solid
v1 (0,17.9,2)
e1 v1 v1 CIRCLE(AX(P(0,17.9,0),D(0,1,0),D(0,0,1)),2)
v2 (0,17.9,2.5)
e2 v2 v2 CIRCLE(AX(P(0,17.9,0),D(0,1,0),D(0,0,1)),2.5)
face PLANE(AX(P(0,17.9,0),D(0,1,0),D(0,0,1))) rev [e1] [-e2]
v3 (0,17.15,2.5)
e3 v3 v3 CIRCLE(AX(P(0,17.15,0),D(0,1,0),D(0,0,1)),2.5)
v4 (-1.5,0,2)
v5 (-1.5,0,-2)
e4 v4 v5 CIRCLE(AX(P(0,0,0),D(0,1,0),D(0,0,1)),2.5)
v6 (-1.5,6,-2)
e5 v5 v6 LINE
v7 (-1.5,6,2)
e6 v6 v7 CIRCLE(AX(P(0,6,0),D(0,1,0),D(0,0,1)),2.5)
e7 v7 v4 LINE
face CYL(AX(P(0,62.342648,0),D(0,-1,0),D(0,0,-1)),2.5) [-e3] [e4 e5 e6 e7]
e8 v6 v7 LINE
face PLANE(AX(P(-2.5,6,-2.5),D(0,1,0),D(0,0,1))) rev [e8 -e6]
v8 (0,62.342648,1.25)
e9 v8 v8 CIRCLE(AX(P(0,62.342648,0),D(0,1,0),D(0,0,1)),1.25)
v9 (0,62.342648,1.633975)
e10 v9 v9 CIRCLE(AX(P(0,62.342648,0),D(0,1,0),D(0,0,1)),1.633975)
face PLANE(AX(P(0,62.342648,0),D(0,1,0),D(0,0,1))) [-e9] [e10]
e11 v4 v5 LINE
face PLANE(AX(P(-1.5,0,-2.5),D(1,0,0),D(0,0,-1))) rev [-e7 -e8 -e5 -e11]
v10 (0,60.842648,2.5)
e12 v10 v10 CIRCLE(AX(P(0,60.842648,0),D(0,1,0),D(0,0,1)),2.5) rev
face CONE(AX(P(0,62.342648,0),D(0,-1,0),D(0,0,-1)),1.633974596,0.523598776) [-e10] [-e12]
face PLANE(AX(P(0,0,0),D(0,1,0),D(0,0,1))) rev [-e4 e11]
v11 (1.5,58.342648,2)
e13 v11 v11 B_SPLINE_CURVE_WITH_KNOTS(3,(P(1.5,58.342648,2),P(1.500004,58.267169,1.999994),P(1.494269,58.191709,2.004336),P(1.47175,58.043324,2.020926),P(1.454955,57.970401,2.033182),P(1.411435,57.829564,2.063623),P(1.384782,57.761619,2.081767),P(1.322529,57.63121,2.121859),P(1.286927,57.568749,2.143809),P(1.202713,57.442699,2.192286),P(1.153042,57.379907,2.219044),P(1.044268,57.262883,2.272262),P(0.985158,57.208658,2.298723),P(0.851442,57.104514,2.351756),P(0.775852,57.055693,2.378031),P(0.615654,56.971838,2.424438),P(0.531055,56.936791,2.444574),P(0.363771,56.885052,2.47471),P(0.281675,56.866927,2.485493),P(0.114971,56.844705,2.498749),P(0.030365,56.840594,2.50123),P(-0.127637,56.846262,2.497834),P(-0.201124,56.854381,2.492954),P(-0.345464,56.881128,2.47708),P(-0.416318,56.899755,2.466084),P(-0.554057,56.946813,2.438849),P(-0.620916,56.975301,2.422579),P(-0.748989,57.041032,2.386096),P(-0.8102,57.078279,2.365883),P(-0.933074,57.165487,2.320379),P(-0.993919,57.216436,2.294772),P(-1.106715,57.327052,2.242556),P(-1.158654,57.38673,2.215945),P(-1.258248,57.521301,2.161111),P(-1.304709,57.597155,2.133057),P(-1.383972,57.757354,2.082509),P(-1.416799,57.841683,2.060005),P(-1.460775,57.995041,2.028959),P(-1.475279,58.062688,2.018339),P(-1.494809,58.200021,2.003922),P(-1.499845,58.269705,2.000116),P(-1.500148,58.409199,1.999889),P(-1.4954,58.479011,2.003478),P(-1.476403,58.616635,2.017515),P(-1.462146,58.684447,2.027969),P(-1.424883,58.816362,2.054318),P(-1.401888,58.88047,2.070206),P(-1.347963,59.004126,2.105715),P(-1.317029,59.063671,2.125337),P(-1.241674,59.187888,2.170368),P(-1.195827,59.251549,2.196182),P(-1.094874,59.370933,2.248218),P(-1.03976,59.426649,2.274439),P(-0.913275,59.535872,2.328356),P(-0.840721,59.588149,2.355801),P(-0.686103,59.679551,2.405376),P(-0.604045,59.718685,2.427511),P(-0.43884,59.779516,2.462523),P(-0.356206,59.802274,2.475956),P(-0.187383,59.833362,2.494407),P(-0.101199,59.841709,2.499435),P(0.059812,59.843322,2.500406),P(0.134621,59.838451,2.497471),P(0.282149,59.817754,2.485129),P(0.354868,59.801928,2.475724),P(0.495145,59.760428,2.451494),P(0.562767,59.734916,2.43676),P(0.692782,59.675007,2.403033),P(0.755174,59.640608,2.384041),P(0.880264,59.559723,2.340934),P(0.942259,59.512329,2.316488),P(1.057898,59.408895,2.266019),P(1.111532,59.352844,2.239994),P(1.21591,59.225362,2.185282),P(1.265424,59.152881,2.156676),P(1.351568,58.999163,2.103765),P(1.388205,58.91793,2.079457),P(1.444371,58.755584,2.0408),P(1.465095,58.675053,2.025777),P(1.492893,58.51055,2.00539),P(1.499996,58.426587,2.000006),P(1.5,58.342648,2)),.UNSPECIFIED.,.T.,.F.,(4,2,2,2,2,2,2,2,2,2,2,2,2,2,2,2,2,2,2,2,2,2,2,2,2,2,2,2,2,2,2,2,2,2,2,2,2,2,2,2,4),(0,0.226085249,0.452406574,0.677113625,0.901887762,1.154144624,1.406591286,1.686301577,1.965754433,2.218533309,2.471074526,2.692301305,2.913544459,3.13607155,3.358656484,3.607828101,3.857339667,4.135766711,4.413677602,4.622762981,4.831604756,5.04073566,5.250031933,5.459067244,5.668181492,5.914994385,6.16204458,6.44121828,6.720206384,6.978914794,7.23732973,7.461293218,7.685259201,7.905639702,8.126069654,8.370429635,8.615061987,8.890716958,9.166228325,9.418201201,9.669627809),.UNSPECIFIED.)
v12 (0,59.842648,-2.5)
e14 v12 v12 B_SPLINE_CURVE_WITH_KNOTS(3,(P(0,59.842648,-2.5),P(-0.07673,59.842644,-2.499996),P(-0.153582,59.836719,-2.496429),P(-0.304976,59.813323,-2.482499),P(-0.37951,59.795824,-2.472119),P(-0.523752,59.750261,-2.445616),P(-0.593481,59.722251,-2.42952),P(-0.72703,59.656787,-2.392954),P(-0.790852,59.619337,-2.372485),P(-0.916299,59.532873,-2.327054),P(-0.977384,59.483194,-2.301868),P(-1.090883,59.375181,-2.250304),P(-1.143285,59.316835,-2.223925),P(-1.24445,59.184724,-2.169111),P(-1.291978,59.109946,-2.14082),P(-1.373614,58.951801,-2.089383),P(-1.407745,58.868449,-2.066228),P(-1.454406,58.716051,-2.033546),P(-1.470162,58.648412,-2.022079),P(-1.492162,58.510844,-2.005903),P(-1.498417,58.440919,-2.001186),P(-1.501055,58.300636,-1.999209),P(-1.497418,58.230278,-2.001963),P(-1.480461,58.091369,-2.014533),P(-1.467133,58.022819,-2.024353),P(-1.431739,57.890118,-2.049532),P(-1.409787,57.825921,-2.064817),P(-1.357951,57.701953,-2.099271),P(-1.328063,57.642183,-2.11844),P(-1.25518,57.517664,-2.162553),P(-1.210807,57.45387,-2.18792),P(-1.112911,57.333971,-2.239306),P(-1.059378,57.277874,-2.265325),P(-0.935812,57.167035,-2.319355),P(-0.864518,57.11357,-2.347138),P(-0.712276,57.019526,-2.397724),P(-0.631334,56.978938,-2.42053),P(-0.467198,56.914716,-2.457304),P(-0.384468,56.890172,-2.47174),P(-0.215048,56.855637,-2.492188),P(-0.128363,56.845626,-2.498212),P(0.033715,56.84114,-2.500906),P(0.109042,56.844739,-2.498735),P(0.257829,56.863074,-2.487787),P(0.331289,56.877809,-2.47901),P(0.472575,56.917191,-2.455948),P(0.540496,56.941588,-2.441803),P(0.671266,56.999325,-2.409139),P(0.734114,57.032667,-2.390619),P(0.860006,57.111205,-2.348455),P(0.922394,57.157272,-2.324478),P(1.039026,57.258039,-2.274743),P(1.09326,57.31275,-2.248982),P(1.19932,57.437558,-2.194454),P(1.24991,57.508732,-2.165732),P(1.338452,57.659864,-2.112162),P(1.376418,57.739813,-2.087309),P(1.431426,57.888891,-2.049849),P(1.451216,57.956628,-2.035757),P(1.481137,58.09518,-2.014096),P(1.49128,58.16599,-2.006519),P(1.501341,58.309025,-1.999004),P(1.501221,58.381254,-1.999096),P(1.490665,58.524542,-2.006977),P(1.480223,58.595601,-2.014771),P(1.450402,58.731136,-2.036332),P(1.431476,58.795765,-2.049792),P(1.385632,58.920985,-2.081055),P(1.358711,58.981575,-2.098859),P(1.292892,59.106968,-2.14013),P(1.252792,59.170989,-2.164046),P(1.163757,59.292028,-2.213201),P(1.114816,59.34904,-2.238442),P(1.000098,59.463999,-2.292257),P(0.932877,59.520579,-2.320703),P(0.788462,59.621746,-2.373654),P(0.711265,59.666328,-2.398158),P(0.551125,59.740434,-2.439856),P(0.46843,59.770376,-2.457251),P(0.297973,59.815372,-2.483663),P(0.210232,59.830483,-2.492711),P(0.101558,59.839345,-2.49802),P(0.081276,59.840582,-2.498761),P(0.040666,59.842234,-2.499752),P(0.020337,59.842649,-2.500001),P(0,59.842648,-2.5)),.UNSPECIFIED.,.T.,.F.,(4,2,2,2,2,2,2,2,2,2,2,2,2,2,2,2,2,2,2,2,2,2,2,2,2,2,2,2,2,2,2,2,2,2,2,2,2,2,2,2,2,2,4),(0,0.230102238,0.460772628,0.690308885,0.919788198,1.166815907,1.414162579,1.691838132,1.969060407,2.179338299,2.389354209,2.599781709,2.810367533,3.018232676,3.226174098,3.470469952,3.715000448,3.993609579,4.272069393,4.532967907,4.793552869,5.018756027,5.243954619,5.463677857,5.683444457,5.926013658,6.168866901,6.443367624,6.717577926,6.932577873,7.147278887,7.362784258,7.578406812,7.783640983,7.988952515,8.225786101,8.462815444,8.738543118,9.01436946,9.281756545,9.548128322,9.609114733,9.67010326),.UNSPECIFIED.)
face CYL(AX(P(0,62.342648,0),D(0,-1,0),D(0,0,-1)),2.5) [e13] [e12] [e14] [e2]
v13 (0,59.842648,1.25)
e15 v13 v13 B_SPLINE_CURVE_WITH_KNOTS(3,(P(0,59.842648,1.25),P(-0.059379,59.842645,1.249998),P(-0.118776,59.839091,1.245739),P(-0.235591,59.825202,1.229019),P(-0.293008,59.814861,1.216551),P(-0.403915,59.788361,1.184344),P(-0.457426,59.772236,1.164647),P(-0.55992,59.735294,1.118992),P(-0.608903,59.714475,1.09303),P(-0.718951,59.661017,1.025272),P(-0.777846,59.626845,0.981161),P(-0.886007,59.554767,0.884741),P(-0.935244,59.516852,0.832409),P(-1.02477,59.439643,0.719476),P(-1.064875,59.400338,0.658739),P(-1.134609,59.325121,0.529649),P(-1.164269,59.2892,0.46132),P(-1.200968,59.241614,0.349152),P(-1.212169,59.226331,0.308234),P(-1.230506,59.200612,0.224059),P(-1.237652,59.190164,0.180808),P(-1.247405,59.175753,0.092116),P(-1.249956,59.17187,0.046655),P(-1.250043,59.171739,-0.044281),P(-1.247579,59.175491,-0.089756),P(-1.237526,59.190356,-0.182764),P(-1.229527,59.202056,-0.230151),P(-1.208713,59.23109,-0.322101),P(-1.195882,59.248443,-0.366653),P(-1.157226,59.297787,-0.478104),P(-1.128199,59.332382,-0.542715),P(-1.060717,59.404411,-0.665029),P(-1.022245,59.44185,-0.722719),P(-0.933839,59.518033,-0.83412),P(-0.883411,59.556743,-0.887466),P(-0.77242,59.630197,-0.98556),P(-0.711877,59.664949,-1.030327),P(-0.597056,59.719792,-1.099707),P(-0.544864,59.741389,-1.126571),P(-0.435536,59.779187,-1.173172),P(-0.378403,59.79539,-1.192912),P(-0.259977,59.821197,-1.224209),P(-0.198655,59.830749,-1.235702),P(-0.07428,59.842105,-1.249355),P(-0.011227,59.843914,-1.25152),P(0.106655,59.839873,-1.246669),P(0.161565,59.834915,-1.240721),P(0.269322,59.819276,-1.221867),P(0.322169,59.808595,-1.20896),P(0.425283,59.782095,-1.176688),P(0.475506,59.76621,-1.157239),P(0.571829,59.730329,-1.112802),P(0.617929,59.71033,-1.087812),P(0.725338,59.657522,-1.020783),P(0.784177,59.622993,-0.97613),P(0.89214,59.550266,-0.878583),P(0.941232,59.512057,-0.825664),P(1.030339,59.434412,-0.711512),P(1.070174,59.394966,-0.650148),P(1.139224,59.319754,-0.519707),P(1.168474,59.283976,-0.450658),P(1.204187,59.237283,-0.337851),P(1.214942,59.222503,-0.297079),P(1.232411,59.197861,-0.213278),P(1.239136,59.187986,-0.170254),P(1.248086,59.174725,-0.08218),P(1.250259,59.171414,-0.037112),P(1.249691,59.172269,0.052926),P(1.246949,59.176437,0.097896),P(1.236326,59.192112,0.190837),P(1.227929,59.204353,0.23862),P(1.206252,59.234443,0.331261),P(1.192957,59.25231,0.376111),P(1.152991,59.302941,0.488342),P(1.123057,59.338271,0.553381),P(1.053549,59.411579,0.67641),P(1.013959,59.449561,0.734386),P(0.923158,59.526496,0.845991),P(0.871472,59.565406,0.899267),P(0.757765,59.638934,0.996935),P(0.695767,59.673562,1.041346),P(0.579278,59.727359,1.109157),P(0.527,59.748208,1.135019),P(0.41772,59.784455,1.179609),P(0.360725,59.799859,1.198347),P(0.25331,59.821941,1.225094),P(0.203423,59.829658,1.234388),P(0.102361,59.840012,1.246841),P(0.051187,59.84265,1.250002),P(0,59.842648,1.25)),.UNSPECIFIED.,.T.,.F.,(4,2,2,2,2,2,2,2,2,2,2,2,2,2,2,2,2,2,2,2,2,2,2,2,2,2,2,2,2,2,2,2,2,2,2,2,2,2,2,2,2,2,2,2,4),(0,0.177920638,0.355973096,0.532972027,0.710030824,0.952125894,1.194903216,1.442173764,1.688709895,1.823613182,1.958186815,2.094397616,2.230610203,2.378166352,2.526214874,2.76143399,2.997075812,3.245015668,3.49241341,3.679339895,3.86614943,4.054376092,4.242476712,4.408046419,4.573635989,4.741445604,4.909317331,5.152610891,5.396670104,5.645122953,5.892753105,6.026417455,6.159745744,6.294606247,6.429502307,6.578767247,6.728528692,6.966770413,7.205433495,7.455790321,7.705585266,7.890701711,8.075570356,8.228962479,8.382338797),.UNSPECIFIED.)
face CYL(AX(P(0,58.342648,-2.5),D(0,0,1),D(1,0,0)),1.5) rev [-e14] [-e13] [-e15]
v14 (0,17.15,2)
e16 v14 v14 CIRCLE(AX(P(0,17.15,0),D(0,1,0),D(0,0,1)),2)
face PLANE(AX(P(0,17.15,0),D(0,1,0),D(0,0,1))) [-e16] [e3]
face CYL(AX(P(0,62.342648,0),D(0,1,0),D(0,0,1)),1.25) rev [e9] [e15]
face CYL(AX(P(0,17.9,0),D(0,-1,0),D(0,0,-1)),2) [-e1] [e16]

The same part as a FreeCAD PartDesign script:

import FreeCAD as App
import Part
import Sketcher
Q = App.Units.Quantity


def edges_at(feature, points):
    """Names of the edges that pass closest to the given points."""
    edges = feature.Shape.Edges
    near = lambda p: min(range(len(edges)), key=lambda i: edges[i].distToShape(Part.Vertex(*p))[0])
    return sorted({f"Edge{near(p) + 1}" for p in points})


def add_polygon(sketch, points):
    """Adds a closed chain of lines whose ends are joined by coincident constraints."""
    first, n = sketch.GeometryCount, len(points)
    for a, b in zip(points, points[1:] + points[:1]):
        sketch.addGeometry(Part.LineSegment(App.Vector(*a, 0), App.Vector(*b, 0)), False)
    for i in range(n):
        sketch.addConstraint(Sketcher.Constraint("Coincident", first + i, 2, first + (i + 1) % n, 1))

doc = App.newDocument("Part")
body = doc.addObject("PartDesign::Body", "Body")

sketch1 = body.newObject("Sketcher::SketchObject", "Sketch")
sketch1.AttachmentSupport = (doc.getObject("XZ_Plane"), [""])
sketch1.MapMode = "FlatFace"
sketch1.addGeometry(Part.Circle(App.Vector(0, 0, 0), App.Vector(0, 0, 1), 2.5), False)
sketch1.addConstraint([
    Sketcher.Constraint("Coincident", 0, 3, -1, 1),
    Sketcher.Constraint("Diameter", 0, Q("5 mm")),
])
pad1 = body.newObject("PartDesign::Pad", "Pad")
pad1.Profile = sketch1
pad1.Length = 62.342648
pad1.Reversed = True
doc.recompute()

chamfer = body.newObject("PartDesign::Chamfer", "Chamfer")
chamfer.Base = (pad1, edges_at(pad1, [(-2.5, 62.343, 0)]))
chamfer.ChamferType = "Two distances"
chamfer.Size = 1.5
chamfer.Size2 = 0.866025

sketch2 = body.newObject("Sketcher::SketchObject", "Sketch001")
sketch2.AttachmentSupport = (doc.getObject("XZ_Plane"), [""])
sketch2.MapMode = "FlatFace"
sketch2.AttachmentOffset = App.Placement(App.Vector(0, 0, -62.342648), App.Rotation())
sketch2.addGeometry(Part.Circle(App.Vector(0, 0, 0), App.Vector(0, 0, 1), 1.2), False)
sketch2.addConstraint([
    Sketcher.Constraint("Coincident", 0, 3, -1, 1),
    Sketcher.Constraint("Diameter", 0, Q("2.5 mm")),
])
doc.recompute()
hole = body.newObject("PartDesign::Hole", "Hole")
hole.Profile = sketch2
hole.ThreadType = "None"
hole.Diameter = 2.5
hole.DepthType = "Dimension"
hole.Depth = 4
hole.DrillPoint = "Angled"
hole.DrillPointAngle = 118
hole.Reversed = True

sketch3 = body.newObject("Sketcher::SketchObject", "Sketch002")
sketch3.AttachmentSupport = (doc.getObject("XY_Plane"), [""])
sketch3.MapMode = "FlatFace"
sketch3.addGeometry(Part.Circle(App.Vector(0, 58.3, 0), App.Vector(0, 0, 1), 1.5), False)
sketch3.addConstraint([
    Sketcher.Constraint("PointOnObject", 0, 3, -2),
    Sketcher.Constraint("Diameter", 0, Q("3 mm")),
    Sketcher.Constraint("DistanceY", -1, 1, 0, 3, Q("58.342648 mm")),
])
pocket1 = body.newObject("PartDesign::Pocket", "Pocket")
pocket1.Profile = sketch3
pocket1.Type = "ThroughAll"
pocket1.Midplane = True

sketch4 = body.newObject("Sketcher::SketchObject", "Sketch003")
sketch4.AttachmentSupport = (doc.getObject("XY_Plane"), [""])
sketch4.MapMode = "FlatFace"
add_polygon(sketch4, [(-2.5, 6), (-2.5, 0), (-1.5, 0), (-1.5, 6)])
sketch4.addConstraint([
    Sketcher.Constraint("Vertical", 0),
    Sketcher.Constraint("Horizontal", 1),
    Sketcher.Constraint("Vertical", 2),
    Sketcher.Constraint("Horizontal", 3),
    Sketcher.Constraint("PointOnObject", 0, 2, -1),
    Sketcher.Constraint("DistanceX", 1, 1, 1, 2, Q("1 mm")),
    Sketcher.Constraint("DistanceY", 0, 2, 0, 1, Q("6 mm")),
    Sketcher.Constraint("DistanceX", 0, 2, -1, 1, Q("2.5 mm")),
])
pocket2 = body.newObject("PartDesign::Pocket", "Pocket001")
pocket2.Profile = sketch4
pocket2.Type = "ThroughAll"
pocket2.Midplane = True

sketch5 = body.newObject("Sketcher::SketchObject", "Sketch004")
sketch5.AttachmentSupport = (doc.getObject("XZ_Plane"), [""])
sketch5.MapMode = "FlatFace"
sketch5.AttachmentOffset = App.Placement(App.Vector(0, 0, -17.15), App.Rotation())
sketch5.addGeometry([
    Part.Circle(App.Vector(0, 0, 0), App.Vector(0, 0, 1), 3),
    Part.Circle(App.Vector(0, 0, 0), App.Vector(0, 0, 1), 2),
], False)
sketch5.addConstraint([
    Sketcher.Constraint("Coincident", 0, 3, -1, 1),
    Sketcher.Constraint("Coincident", 1, 3, -1, 1),
    Sketcher.Constraint("Diameter", 0, Q("6 mm")),
    Sketcher.Constraint("Diameter", 1, Q("4 mm")),
])
pocket3 = body.newObject("PartDesign::Pocket", "Pocket002")
pocket3.Profile = sketch5
pocket3.Length = 0.75

doc.recompute()
